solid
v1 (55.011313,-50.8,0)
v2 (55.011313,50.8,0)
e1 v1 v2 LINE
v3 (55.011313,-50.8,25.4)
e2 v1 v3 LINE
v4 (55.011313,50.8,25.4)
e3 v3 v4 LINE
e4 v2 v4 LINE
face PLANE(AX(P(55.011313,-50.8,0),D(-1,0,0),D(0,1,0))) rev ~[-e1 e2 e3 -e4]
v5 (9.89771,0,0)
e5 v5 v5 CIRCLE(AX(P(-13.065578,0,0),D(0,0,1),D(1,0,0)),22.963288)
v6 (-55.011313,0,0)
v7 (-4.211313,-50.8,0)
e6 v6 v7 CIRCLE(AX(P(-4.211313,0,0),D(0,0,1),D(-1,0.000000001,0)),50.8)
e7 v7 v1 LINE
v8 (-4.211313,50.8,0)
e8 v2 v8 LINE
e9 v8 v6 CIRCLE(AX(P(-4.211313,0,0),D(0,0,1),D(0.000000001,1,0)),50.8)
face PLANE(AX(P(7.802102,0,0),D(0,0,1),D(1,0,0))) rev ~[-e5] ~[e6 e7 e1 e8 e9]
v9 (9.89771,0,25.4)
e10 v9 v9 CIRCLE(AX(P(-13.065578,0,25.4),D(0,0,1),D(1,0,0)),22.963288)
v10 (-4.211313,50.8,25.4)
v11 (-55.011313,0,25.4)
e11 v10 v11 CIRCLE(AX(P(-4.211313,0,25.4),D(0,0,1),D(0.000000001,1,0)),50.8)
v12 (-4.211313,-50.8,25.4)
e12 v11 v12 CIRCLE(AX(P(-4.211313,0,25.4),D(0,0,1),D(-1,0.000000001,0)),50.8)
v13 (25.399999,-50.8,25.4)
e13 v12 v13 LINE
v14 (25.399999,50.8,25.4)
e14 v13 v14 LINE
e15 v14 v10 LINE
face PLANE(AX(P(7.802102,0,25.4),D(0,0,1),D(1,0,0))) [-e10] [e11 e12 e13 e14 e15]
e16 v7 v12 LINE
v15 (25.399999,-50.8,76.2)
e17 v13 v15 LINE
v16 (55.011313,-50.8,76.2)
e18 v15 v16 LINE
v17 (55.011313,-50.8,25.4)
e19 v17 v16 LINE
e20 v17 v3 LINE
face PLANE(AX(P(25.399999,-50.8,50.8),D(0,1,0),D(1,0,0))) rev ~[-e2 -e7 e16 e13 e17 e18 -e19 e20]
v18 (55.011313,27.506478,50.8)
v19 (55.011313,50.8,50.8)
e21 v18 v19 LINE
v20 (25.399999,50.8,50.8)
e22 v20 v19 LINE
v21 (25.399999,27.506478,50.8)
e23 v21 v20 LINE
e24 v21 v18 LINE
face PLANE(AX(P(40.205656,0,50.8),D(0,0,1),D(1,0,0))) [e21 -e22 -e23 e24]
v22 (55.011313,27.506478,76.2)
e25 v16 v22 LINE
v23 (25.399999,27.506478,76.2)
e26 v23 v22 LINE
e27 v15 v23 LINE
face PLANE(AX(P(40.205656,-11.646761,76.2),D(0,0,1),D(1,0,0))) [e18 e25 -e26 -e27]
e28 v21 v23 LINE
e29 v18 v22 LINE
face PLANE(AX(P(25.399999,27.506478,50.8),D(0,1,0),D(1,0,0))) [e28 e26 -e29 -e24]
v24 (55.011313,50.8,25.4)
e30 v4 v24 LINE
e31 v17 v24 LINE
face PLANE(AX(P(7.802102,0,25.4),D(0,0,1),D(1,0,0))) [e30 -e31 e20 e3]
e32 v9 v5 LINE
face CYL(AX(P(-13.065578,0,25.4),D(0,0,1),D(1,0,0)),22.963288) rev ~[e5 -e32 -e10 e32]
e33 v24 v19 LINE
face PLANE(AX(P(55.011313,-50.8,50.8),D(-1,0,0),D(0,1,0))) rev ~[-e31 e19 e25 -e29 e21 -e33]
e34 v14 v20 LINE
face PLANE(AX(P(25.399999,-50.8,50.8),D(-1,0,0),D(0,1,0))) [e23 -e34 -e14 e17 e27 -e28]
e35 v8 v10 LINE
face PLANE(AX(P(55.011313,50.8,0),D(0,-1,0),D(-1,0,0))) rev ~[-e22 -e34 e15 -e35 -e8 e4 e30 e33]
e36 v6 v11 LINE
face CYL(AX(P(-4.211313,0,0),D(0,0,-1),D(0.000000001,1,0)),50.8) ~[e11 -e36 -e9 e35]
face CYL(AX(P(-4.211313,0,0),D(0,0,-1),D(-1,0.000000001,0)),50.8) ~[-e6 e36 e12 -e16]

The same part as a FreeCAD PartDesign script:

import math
import FreeCAD as App
import Part
import Sketcher

V = App.Vector
Q = App.Units.Quantity


def add_polygon(sketch, points):
    """Adds a closed chain of lines whose ends are joined by coincident constraints."""
    first, n = sketch.GeometryCount, len(points)
    for a, b in zip(points, points[1:] + points[:1]):
        sketch.addGeometry(Part.LineSegment(App.Vector(*a, 0), App.Vector(*b, 0)), False)
    for i in range(n):
        sketch.addConstraint(Sketcher.Constraint("Coincident", first + i, 2, first + (i + 1) % n, 1))

doc = App.newDocument("Part")
body = doc.addObject("PartDesign::Body", "Body")

sketch1 = body.newObject("Sketcher::SketchObject", "Sketch")
sketch1.AttachmentSupport = (doc.getObject("XY_Plane"), [""])
sketch1.MapMode = "FlatFace"
sketch1.addGeometry(Part.LineSegment(V(-4, -51, 0), V(55, -51, 0)), False)
sketch1.addGeometry(Part.LineSegment(V(55, -51, 0), V(55, 51, 0)), False)
sketch1.addGeometry(Part.LineSegment(V(55, 51, 0), V(-4, 51, 0)), False)
sketch1.addGeometry(Part.ArcOfCircle(Part.Circle(V(-4, 0, 0), V(0, 0, 1), 51), math.radians(90), math.radians(180)), False)
sketch1.addGeometry(Part.ArcOfCircle(Part.Circle(V(-4, 0, 0), V(0, 0, 1), 51), math.radians(180), math.radians(270)), False)
sketch1.addConstraint(Sketcher.Constraint("Coincident", 0, 2, 1, 1))
sketch1.addConstraint(Sketcher.Constraint("Coincident", 1, 2, 2, 1))
sketch1.addConstraint(Sketcher.Constraint("Tangent", 2, 2, 3, 1))
sketch1.addConstraint(Sketcher.Constraint("Tangent", 3, 2, 4, 1))
sketch1.addConstraint(Sketcher.Constraint("Tangent", 4, 2, 0, 1))
sketch1.addConstraint(Sketcher.Constraint("Horizontal", 0))
sketch1.addConstraint(Sketcher.Constraint("Vertical", 1))
sketch1.addConstraint(Sketcher.Constraint("Horizontal", 2))
sketch1.addConstraint(Sketcher.Constraint("Equal", 3, 4))
sketch1.addConstraint(Sketcher.Constraint("PointOnObject", 3, 3, -1))
sketch1.addConstraint(Sketcher.Constraint("PointOnObject", 3, 2, -1))
sketch1.addConstraint(Sketcher.Constraint("Radius", 3, Q("2 in")))
sketch1.addConstraint(Sketcher.Constraint("DistanceX", 0, 1, 0, 2, Q("59.222626 mm")))
sketch1.addConstraint(Sketcher.Constraint("DistanceX", 3, 3, -1, 1, Q("4.211313 mm")))
pad1 = body.newObject("PartDesign::Pad", "Pad")
pad1.Profile = sketch1
pad1.Length = Q("1 in")

sketch2 = body.newObject("Sketcher::SketchObject", "Sketch001")
sketch2.AttachmentSupport = (doc.getObject("XY_Plane"), [""])
sketch2.MapMode = "FlatFace"
sketch2.AttachmentOffset = App.Placement(V(0, 0, 1 * 25.4), App.Rotation())
sketch2.addGeometry(Part.Circle(V(-13, 0, 0), V(0, 0, 1), 23), False)
sketch2.addConstraint(Sketcher.Constraint("PointOnObject", 0, 3, -1))
sketch2.addConstraint(Sketcher.Constraint("Diameter", 0, Q("45.926576 mm")))
sketch2.addConstraint(Sketcher.Constraint("DistanceX", 0, 3, -1, 1, Q("13.065578 mm")))
pocket1 = body.newObject("PartDesign::Pocket", "Pocket")
pocket1.Profile = sketch2
pocket1.Type = "ThroughAll"

sketch3 = body.newObject("Sketcher::SketchObject", "Sketch002")
sketch3.AttachmentSupport = (doc.getObject("XY_Plane"), [""])
sketch3.MapMode = "FlatFace"
sketch3.AttachmentOffset = App.Placement(V(0, 0, 1 * 25.4), App.Rotation())
add_polygon(sketch3, [(25, 51), (25, -51), (55, -51), (55, 51)])
sketch3.addConstraint(Sketcher.Constraint("Vertical", 0))
sketch3.addConstraint(Sketcher.Constraint("Horizontal", 1))
sketch3.addConstraint(Sketcher.Constraint("Vertical", 2))
sketch3.addConstraint(Sketcher.Constraint("Horizontal", 3))
sketch3.addConstraint(Sketcher.Constraint("DistanceY", 0, 2, 0, 1, Q("4 in")))
sketch3.addConstraint(Sketcher.Constraint("DistanceX", -1, 1, 0, 2, Q("1 in")))
sketch3.addConstraint(Sketcher.Constraint("DistanceY", 0, 2, -1, 1, Q("2 in")))
sketch3.addConstraint(Sketcher.Constraint("DistanceX", 1, 1, 1, 2, Q("29.611313 mm")))
pad2 = body.newObject("PartDesign::Pad", "Pad001")
pad2.Profile = sketch3
pad2.Length = Q("1 in")

sketch4 = body.newObject("Sketcher::SketchObject", "Sketch003")
sketch4.AttachmentSupport = (doc.getObject("XY_Plane"), [""])
sketch4.MapMode = "FlatFace"
sketch4.AttachmentOffset = App.Placement(V(0, 0, 2 * 25.4), App.Rotation())
add_polygon(sketch4, [(25, 28), (25, -51), (55, -51), (55, 28)])
sketch4.addConstraint(Sketcher.Constraint("Vertical", 0))
sketch4.addConstraint(Sketcher.Constraint("Horizontal", 1))
sketch4.addConstraint(Sketcher.Constraint("Vertical", 2))
sketch4.addConstraint(Sketcher.Constraint("Horizontal", 3))
sketch4.addConstraint(Sketcher.Constraint("DistanceX", -1, 1, 0, 2, Q("1 in")))
sketch4.addConstraint(Sketcher.Constraint("DistanceY", 0, 2, -1, 1, Q("2 in")))
sketch4.addConstraint(Sketcher.Constraint("DistanceY", 0, 2, 0, 1, Q("78.306478 mm")))
sketch4.addConstraint(Sketcher.Constraint("DistanceX", 1, 1, 1, 2, Q("29.611313 mm")))
pad3 = body.newObject("PartDesign::Pad", "Pad002")
pad3.Profile = sketch4
pad3.Length = Q("1 in")

doc.recompute()
